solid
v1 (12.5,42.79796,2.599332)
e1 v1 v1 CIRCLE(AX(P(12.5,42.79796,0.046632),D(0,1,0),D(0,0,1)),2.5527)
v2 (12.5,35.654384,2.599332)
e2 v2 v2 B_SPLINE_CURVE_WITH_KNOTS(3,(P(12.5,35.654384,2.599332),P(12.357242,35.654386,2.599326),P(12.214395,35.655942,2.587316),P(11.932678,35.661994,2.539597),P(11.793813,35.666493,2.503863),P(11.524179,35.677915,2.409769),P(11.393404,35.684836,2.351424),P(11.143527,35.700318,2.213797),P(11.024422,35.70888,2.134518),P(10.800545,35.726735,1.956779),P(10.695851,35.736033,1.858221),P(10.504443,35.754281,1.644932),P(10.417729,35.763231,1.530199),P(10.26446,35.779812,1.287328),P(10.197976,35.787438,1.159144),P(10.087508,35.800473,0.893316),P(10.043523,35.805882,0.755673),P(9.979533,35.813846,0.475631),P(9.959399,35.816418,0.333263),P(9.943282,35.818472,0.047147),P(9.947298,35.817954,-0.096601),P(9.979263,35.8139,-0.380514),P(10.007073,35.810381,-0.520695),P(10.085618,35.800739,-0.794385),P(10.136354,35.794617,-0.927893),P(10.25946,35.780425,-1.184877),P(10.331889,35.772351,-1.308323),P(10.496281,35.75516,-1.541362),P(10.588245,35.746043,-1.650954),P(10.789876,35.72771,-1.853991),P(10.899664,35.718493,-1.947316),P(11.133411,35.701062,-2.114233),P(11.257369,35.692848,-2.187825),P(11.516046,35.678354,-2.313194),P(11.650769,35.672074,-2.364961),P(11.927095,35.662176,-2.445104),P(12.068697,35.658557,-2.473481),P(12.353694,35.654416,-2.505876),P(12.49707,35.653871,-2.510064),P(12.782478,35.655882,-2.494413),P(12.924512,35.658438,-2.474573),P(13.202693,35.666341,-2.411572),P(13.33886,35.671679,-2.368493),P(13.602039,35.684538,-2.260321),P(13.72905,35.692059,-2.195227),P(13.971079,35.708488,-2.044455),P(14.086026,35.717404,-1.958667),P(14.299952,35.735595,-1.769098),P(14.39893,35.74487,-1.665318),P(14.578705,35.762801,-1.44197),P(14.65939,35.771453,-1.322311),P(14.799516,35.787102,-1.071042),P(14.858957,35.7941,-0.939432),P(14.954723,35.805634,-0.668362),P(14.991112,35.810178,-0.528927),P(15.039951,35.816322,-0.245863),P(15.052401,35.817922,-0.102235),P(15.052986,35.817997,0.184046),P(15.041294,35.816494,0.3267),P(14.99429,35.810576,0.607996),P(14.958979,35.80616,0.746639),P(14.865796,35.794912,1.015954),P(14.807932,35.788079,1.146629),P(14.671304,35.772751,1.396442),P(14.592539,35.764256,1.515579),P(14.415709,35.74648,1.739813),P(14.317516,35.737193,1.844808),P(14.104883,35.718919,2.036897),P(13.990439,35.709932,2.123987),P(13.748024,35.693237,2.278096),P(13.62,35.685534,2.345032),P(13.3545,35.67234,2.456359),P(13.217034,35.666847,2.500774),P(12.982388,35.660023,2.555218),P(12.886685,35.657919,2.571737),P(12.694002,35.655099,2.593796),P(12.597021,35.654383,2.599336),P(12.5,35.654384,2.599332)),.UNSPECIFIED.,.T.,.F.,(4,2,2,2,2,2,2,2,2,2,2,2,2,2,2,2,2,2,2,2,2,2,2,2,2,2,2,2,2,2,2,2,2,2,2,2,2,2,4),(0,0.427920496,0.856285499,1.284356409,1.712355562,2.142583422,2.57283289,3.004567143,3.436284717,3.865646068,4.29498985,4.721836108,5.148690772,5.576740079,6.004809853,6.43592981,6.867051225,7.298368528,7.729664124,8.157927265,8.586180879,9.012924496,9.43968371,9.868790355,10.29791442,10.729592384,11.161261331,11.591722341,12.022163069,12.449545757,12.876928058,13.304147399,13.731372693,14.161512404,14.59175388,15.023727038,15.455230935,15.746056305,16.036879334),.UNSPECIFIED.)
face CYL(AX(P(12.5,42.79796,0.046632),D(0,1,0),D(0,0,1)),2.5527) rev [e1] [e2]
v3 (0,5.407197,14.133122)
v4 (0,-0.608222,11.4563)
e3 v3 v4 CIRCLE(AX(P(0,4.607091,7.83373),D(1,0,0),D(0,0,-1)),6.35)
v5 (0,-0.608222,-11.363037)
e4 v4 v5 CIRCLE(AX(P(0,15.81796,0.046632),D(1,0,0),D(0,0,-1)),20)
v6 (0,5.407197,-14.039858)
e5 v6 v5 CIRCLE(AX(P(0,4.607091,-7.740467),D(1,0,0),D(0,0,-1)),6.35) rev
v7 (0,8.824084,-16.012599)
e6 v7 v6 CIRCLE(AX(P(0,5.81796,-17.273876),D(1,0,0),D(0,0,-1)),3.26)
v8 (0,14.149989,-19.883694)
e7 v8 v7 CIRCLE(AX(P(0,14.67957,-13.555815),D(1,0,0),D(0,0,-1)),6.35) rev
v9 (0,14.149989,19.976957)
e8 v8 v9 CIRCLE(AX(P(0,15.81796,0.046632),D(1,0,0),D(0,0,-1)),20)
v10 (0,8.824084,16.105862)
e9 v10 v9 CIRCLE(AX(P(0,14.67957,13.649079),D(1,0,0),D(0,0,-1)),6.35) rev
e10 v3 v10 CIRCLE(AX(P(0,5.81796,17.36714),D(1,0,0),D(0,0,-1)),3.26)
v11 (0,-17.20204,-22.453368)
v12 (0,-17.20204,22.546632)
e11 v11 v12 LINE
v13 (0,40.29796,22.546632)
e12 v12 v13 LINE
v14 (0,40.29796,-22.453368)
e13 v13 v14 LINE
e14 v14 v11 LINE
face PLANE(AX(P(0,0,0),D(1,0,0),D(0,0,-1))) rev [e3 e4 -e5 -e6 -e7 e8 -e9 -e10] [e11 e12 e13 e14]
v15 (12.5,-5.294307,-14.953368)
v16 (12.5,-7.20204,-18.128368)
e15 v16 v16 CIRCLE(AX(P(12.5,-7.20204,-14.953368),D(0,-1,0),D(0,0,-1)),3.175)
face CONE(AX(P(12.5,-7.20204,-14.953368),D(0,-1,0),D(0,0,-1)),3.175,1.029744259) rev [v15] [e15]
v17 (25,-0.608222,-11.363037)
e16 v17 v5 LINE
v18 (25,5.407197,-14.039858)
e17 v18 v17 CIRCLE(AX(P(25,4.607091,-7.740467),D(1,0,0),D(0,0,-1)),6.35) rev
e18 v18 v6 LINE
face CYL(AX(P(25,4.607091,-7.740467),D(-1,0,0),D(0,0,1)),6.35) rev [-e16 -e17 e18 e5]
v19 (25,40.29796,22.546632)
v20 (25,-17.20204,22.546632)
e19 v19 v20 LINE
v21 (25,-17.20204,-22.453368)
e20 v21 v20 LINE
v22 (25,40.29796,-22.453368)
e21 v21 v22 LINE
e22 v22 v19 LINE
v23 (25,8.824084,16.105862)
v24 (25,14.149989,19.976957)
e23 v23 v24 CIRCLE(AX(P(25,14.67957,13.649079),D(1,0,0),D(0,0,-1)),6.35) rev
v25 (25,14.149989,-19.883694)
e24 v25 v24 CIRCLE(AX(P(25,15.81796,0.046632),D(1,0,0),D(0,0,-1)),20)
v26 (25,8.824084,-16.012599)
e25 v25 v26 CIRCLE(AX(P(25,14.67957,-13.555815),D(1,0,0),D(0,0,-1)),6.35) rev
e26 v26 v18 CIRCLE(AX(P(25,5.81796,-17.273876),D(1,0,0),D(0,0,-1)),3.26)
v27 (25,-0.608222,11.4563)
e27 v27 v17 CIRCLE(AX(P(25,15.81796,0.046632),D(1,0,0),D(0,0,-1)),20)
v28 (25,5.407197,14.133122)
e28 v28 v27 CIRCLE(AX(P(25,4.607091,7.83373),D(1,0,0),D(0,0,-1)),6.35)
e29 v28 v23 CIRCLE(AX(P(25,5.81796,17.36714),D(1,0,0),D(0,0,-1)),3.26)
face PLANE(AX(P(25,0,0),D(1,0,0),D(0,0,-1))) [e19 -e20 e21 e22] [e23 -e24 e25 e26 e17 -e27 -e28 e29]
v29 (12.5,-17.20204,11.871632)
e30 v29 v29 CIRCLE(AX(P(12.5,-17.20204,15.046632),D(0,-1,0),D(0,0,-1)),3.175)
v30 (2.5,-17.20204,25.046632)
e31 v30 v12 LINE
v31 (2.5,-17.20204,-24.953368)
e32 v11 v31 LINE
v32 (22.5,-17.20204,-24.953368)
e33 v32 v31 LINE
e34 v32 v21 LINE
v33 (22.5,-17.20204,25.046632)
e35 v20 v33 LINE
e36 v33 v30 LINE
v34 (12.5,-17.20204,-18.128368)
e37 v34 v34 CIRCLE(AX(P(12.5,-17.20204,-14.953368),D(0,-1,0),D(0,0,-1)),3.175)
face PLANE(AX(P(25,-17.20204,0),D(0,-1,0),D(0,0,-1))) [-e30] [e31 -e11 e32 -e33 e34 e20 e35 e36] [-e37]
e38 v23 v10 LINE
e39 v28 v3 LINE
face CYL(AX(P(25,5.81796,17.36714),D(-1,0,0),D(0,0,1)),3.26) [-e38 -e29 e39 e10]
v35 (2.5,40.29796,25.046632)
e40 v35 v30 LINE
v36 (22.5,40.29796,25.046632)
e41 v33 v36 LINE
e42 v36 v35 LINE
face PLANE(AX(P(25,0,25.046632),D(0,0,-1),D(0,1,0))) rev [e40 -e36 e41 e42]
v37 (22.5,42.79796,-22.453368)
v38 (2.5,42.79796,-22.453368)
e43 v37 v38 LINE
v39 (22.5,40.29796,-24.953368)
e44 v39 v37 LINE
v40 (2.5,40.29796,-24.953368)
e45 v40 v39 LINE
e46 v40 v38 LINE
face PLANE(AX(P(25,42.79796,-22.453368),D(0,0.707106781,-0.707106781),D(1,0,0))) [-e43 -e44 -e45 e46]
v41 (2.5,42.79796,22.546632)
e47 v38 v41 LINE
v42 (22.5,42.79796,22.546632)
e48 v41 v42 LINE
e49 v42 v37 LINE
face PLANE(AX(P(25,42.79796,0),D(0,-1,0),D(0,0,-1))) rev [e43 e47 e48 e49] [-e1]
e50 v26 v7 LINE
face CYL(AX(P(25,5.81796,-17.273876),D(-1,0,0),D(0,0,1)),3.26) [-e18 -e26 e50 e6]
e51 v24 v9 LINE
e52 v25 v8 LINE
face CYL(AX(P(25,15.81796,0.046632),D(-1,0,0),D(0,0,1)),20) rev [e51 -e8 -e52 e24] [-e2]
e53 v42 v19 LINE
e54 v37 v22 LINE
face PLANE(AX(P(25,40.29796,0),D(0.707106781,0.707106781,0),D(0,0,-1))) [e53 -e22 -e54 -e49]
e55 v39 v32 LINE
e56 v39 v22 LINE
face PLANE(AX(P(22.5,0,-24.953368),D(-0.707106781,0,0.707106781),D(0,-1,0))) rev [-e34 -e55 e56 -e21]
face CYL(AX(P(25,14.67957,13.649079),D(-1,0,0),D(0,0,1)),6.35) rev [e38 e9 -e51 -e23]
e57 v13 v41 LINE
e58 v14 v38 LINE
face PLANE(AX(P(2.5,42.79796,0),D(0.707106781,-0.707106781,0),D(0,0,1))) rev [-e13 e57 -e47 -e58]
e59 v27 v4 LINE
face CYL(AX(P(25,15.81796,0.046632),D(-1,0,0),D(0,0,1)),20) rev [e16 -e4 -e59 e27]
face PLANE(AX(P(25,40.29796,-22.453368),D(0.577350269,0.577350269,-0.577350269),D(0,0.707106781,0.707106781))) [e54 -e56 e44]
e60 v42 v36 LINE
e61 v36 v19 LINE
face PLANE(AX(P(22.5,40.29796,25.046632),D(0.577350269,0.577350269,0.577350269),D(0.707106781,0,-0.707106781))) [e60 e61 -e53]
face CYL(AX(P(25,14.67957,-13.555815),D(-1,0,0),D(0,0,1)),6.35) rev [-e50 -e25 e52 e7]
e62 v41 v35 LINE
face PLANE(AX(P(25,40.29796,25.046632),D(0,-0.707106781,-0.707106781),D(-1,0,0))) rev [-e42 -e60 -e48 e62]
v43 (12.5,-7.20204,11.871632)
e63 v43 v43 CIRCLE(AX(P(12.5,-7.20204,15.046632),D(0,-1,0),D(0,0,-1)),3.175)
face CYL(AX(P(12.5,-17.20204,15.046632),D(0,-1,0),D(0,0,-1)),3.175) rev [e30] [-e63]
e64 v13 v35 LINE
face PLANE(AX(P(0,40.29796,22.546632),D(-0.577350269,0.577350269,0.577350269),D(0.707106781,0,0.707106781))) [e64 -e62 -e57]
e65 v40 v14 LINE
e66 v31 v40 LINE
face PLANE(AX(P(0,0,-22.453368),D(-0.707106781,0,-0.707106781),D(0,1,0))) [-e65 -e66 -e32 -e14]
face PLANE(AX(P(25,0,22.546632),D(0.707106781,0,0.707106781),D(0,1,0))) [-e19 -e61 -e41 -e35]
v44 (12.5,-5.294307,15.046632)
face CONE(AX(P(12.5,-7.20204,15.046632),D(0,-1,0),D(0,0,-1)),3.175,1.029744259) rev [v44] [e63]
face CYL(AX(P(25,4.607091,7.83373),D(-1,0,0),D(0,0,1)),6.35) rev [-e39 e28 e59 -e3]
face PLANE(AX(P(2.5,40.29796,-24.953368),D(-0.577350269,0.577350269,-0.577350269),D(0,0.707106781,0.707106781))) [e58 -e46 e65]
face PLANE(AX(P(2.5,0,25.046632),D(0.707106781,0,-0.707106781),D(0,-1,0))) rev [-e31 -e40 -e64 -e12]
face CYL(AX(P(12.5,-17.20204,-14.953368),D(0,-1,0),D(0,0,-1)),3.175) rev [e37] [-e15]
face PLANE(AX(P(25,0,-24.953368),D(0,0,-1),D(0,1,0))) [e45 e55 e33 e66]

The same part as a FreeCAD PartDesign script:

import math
import FreeCAD as App
import Part
import Sketcher


def edges_at(feature, points):
    """Names of the edges that pass closest to the given points."""
    edges = feature.Shape.Edges
    near = lambda p: min(range(len(edges)), key=lambda i: edges[i].distToShape(Part.Vertex(*p))[0])
    return sorted({f"Edge{near(p) + 1}" for p in points})


def add_polygon(sketch, points):
    """Adds a closed chain of lines whose ends are joined by coincident constraints."""
    first, n = sketch.GeometryCount, len(points)
    for a, b in zip(points, points[1:] + points[:1]):
        sketch.addGeometry(Part.LineSegment(App.Vector(*a, 0), App.Vector(*b, 0)), False)
    for i in range(n):
        sketch.addConstraint(Sketcher.Constraint("Coincident", first + i, 2, first + (i + 1) % n, 1))

doc = App.newDocument("Part")
params = doc.addObject("Spreadsheet::Sheet", "Params")
for row, (alias, value) in enumerate([
    ("sketch1_radius", "20 mm"),
    ("sketch1_width", "60 mm"),
    ("sketch1_height", "50 mm"),
    ("sketch1_radius2", "6.35 mm"),
    ("sketch1_radius3", "3.26 mm"),
    ("pad1_length", "25 mm"),
    ("chamfer_size", "2.5 mm"),
    ("sketch3_diameter", "6.35 mm"),
    ("hole_diameter", "6.35 mm"),
    ("hole_depth", "10 mm"),
], start=1):
    params.set(f"A{row}", alias)
    params.set(f"B{row}", "=" + value)
    params.setAlias(f"B{row}", alias)

body = doc.addObject("PartDesign::Body", "Body")

# Sketch on YZ plane
sketch1 = body.newObject("Sketcher::SketchObject", "Sketch")
sketch1.AttachmentSupport = (doc.getObject("YZ_Plane"), [""])
sketch1.MapMode = "FlatFace"
add_polygon(sketch1, [(42.79796, 25.046632), (-17.20204, 25.046632), (-17.20204, -24.953368), (42.79796, -24.953368)])  # lines 0-3
sketch1.addGeometry(Part.ArcOfCircle(Part.Circle(App.Vector(15.81796, 0.046632, 0), App.Vector(0, 0, 1), 20), math.radians(145.216057), math.radians(214.783943)), False)  # 4
sketch1.addGeometry(Part.ArcOfCircle(Part.Circle(App.Vector(4.607091, 7.83373, 0), App.Vector(0, 0, 1), 6.35), math.radians(82.761435), math.radians(145.216057)), False)  # 5
sketch1.addGeometry(Part.ArcOfCircle(Part.Circle(App.Vector(5.81796, 17.36714, 0), App.Vector(0, 0, 1), 3.26), math.radians(-97.238565), math.radians(-60.000002)), False)  # 6
sketch1.addGeometry(Part.ArcOfCircle(Part.Circle(App.Vector(5.81796, 17.36714, 0), App.Vector(0, 0, 1), 3.26), math.radians(-60.000002), math.radians(-22.761435)), False)  # 7
sketch1.addGeometry(Part.ArcOfCircle(Part.Circle(App.Vector(14.67957, 13.649079, 0), App.Vector(0, 0, 1), 6.35), math.radians(94.783943), math.radians(157.238565)), False)  # 8
sketch1.addGeometry(Part.ArcOfCircle(Part.Circle(App.Vector(15.81796, 0.046632, 0), App.Vector(0, 0, 1), 20), math.radians(-94.783943), math.radians(94.783943)), False)  # 9
sketch1.addGeometry(Part.ArcOfCircle(Part.Circle(App.Vector(14.67957, -13.555815, 0), App.Vector(0, 0, 1), 6.35), math.radians(-157.238565), math.radians(-94.783943)), False)  # 10
sketch1.addGeometry(Part.ArcOfCircle(Part.Circle(App.Vector(5.81796, -17.273876, 0), App.Vector(0, 0, 1), 3.26), math.radians(22.761435), math.radians(59.999998)), False)  # 11
sketch1.addGeometry(Part.ArcOfCircle(Part.Circle(App.Vector(5.81796, -17.273876, 0), App.Vector(0, 0, 1), 3.26), math.radians(59.999998), math.radians(97.238565)), False)  # 12
sketch1.addGeometry(Part.ArcOfCircle(Part.Circle(App.Vector(4.607091, -7.740467, 0), App.Vector(0, 0, 1), 6.35), math.radians(-145.216057), math.radians(-82.761435)), False)  # 13
sketch1.addConstraint([
    Sketcher.Constraint("Tangent", 4, 1, 5, 2),
    Sketcher.Constraint("Tangent", 5, 1, 6, 1),
    Sketcher.Constraint("Tangent", 6, 2, 7, 1),
    Sketcher.Constraint("Tangent", 7, 2, 8, 2),
    Sketcher.Constraint("Tangent", 8, 1, 9, 2),
    Sketcher.Constraint("Tangent", 9, 1, 10, 2),
    Sketcher.Constraint("Tangent", 10, 1, 11, 1),
    Sketcher.Constraint("Tangent", 11, 2, 12, 1),
    Sketcher.Constraint("Tangent", 12, 2, 13, 2),
    Sketcher.Constraint("Tangent", 13, 1, 4, 2),
    Sketcher.Constraint("Horizontal", 0),
    Sketcher.Constraint("Vertical", 1),
    Sketcher.Constraint("Horizontal", 2),
    Sketcher.Constraint("Vertical", 3),
    Sketcher.Constraint("Coincident", 9, 3, 4, 3),
    Sketcher.Constraint("Equal", 6, 7),
    Sketcher.Constraint("Equal", 5, 8),
    Sketcher.Constraint("Equal", 4, 9),
    Sketcher.Constraint("Equal", 8, 10),
    Sketcher.Constraint("Equal", 7, 11),
    Sketcher.Constraint("Equal", 11, 12),
    Sketcher.Constraint("Equal", 10, 13),
    Sketcher.Constraint("Vertical", 8, 3, 10, 3),
    Sketcher.Constraint("Vertical", 7, 3, 11, 3),
    Sketcher.Constraint("Vertical", 6, 2, 11, 2),
    Sketcher.Constraint("Radius", 4, 20.0),
    Sketcher.Constraint("DistanceX", 0, 2, 0, 1, 60.0),
    Sketcher.Constraint("DistanceY", 1, 2, 1, 1, 50.0),
    Sketcher.Constraint("Radius", 5, 6.35),
    Sketcher.Constraint("Radius", 6, 3.26),
    Sketcher.Constraint("DistanceX", 6, 3, 4, 3, 10.0),
    Sketcher.Constraint("DistanceY", 2, 2, 4, 3, 25.0),
    Sketcher.Constraint("DistanceX", 0, 2, 7, 3, 23.02),
    Sketcher.Constraint("DistanceX", 6, 3, 6, 2, 1.63),
    Sketcher.Constraint("DistanceY", -1, 1, 4, 1, 11.4563),
    Sketcher.Constraint("DistanceY", 10, 1, -1, 1, 16.012599),
    Sketcher.Constraint("DistanceX", -1, 1, 4, 3, 15.81796),
])
sketch1.setExpression("Constraints[29]", "Params.sketch1_radius")
sketch1.setExpression("Constraints[30]", "Params.sketch1_width")
sketch1.setExpression("Constraints[31]", "Params.sketch1_height")
sketch1.setExpression("Constraints[32]", "Params.sketch1_radius2")
sketch1.setExpression("Constraints[33]", "Params.sketch1_radius3")
pad1 = body.newObject("PartDesign::Pad", "Pad")
pad1.Profile = sketch1
pad1.setExpression("Length", "Params.pad1_length")
doc.recompute()

chamfer = body.newObject("PartDesign::Chamfer", "Chamfer")
chamfer.Base = (pad1, edges_at(pad1, [
    (0, 12.798, -24.953),
    (0, 12.798, 25.047),
    (0, 42.798, 0.047),
    (12.5, 42.798, -24.953),
    (12.5, 42.798, 25.047),
    (25, 42.798, 0.047),
    (25, 12.798, 25.047),
    (25, 12.798, -24.953),
]))
chamfer.setExpression("Size", "Params.chamfer_size")

# Sketch on XZ plane
sketch2 = body.newObject("Sketcher::SketchObject", "Sketch001")
sketch2.AttachmentSupport = (doc.getObject("XZ_Plane"), [""])
sketch2.MapMode = "FlatFace"
sketch2.AttachmentOffset = App.Placement(App.Vector(0, 0, -42.79796), App.Rotation())
sketch2.addGeometry(Part.Circle(App.Vector(12.5, 0.046632, 0), App.Vector(0, 0, 1), 2.5527), False)
sketch2.addConstraint([
    Sketcher.Constraint("Diameter", 0, 5.1054),
    Sketcher.Constraint("DistanceX", -1, 1, 0, 3, 12.5),
    Sketcher.Constraint("DistanceY", -1, 1, 0, 3, 0.046632),
])
pocket1 = body.newObject("PartDesign::Pocket", "Pocket")
pocket1.Profile = sketch2
pocket1.Type = "UpToFirst"
pocket1.Reversed = True

# Sketch on XZ plane
sketch3 = body.newObject("Sketcher::SketchObject", "Sketch002")
sketch3.AttachmentSupport = (doc.getObject("XZ_Plane"), [""])
sketch3.MapMode = "FlatFace"
sketch3.AttachmentOffset = App.Placement(App.Vector(0, 0, 17.20204), App.Rotation())
sketch3.addGeometry([
    Part.Circle(App.Vector(12.5, 15.046632, 0), App.Vector(0, 0, 1), 3.175),
    Part.Circle(App.Vector(12.5, -14.953368, 0), App.Vector(0, 0, 1), 3.175),
], False)
sketch3.addConstraint([
    Sketcher.Constraint("Equal", 0, 1),
    Sketcher.Constraint("Vertical", 0, 3, 1, 3),
    Sketcher.Constraint("Diameter", 0, 6.35),
    Sketcher.Constraint("DistanceY", 1, 3, 0, 3, 30.0),
    Sketcher.Constraint("DistanceX", -1, 1, 0, 3, 12.5),
    Sketcher.Constraint("DistanceY", -1, 1, 0, 3, 15.046632),
])
sketch3.setExpression("Constraints[2]", "Params.sketch3_diameter")
doc.recompute()
hole = body.newObject("PartDesign::Hole", "Hole")
hole.Profile = sketch3
hole.ThreadType = "None"
hole.setExpression("Diameter", "Params.hole_diameter")
hole.DepthType = "Dimension"
hole.setExpression("Depth", "Params.hole_depth")
hole.DrillPoint = "Angled"
hole.DrillPointAngle = 118

doc.recompute()
